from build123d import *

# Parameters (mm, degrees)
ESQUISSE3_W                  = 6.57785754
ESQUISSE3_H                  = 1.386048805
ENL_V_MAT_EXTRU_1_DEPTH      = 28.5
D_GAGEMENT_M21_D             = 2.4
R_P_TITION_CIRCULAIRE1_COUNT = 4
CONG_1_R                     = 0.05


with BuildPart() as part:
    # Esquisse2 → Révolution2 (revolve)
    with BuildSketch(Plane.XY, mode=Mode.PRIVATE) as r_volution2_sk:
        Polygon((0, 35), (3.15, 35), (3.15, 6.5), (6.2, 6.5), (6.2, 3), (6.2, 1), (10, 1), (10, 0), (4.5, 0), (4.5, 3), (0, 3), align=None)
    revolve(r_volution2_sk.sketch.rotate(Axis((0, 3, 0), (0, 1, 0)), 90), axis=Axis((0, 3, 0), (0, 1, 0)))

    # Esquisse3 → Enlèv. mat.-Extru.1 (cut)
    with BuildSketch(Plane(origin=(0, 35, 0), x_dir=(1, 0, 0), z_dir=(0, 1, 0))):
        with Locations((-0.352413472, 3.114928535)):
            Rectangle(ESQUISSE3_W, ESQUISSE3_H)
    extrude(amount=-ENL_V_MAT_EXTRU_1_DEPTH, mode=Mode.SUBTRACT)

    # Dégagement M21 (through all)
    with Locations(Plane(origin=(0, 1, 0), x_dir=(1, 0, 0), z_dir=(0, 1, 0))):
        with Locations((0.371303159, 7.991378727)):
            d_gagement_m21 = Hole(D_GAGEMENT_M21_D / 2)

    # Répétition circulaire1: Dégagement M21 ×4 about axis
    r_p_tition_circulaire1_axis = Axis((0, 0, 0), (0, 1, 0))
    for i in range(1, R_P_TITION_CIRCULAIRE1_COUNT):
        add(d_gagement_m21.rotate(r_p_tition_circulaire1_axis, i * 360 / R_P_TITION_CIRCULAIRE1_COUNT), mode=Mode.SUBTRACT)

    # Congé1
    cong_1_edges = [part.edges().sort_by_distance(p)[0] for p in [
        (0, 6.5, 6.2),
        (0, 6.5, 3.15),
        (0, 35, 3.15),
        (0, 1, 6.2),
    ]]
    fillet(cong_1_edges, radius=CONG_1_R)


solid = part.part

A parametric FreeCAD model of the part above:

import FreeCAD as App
import Part
import Sketcher
from FreeCAD import Vector


def edges_at(feature, points):
    """Names of the edges that pass closest to the given points."""
    edges = feature.Shape.Edges
    near = lambda p: min(range(len(edges)), key=lambda i: edges[i].distToShape(Part.Vertex(*p))[0])
    return sorted({f"Edge{near(p) + 1}" for p in points})


def add_polygon(sketch, points):
    """Adds a closed chain of lines whose ends are joined by coincident constraints."""
    first, n = sketch.GeometryCount, len(points)
    for a, b in zip(points, points[1:] + points[:1]):
        sketch.addGeometry(Part.LineSegment(App.Vector(*a, 0), App.Vector(*b, 0)), False)
    for i in range(n):
        sketch.addConstraint(Sketcher.Constraint("Coincident", first + i, 2, first + (i + 1) % n, 1))

doc = App.newDocument("Part")
params = doc.addObject("Spreadsheet::Sheet", "Params")
for row, (alias, value) in enumerate([
    ("sketch1_height", "32 mm"),
    ("sketch1_height2", "3 mm"),
    ("sketch1_height3", "1 mm"),
    ("sketch1_width", "4.5 mm"),
    ("sketch1_width2", "5.5 mm"),
    ("revolution_angle", "360 deg"),
    ("pocket1_length", "28.5 mm"),
    ("sketch3_diameter", "2.4 mm"),
    ("hole_diameter", "2.4 mm"),
    ("fillet_radius", "0.05 mm"),
], start=1):
    params.set(f"A{row}", alias)
    params.set(f"B{row}", "=" + value)
    params.setAlias(f"B{row}", alias)

body = doc.addObject("PartDesign::Body", "Body")

sketch1 = body.newObject("Sketcher::SketchObject", "Sketch")
sketch1.AttachmentSupport = (doc.getObject("XY_Plane"), [""])
sketch1.MapMode = "FlatFace"
add_polygon(sketch1, [(3.1, 35), (0, 35), (0, 3), (4.5, 3), (4.5, 0), (10, 0), (10, 1), (6.2, 1), (6.2, 6.5), (3.1, 6.5)])
sketch1.addConstraint([
    Sketcher.Constraint("Horizontal", 0),
    Sketcher.Constraint("Vertical", 1),
    Sketcher.Constraint("Horizontal", 2),
    Sketcher.Constraint("Vertical", 3),
    Sketcher.Constraint("Horizontal", 4),
    Sketcher.Constraint("Vertical", 5),
    Sketcher.Constraint("Horizontal", 6),
    Sketcher.Constraint("Vertical", 7),
    Sketcher.Constraint("Horizontal", 8),
    Sketcher.Constraint("Vertical", 9),
    Sketcher.Constraint("PointOnObject", 0, 2, -2),
    Sketcher.Constraint("PointOnObject", 3, 2, -1),
    Sketcher.Constraint("Equal", 4, 7),
    Sketcher.Constraint("DistanceY", 1, 2, 1, 1, 32.0),
    Sketcher.Constraint("DistanceY", 3, 2, 3, 1, 3.0),
    Sketcher.Constraint("DistanceY", 5, 1, 5, 2, 1.0),
    Sketcher.Constraint("DistanceX", 2, 1, 2, 2, 4.5),
    Sketcher.Constraint("DistanceX", 4, 1, 4, 2, 5.5),
    Sketcher.Constraint("DistanceX", 6, 2, 6, 1, 3.8),
    Sketcher.Constraint("DistanceX", 0, 2, 0, 1, 3.15),
])
sketch1.setExpression("Constraints[23]", "Params.sketch1_height")
sketch1.setExpression("Constraints[24]", "Params.sketch1_height2")
sketch1.setExpression("Constraints[25]", "Params.sketch1_height3")
sketch1.setExpression("Constraints[26]", "Params.sketch1_width")
sketch1.setExpression("Constraints[27]", "Params.sketch1_width2")
revolution = body.newObject("PartDesign::Revolution", "Revolution")
revolution.Profile = sketch1
revolution.ReferenceAxis = (sketch1, ["V_Axis"])
revolution.setExpression("Angle", "Params.revolution_angle")

sketch2 = body.newObject("Sketcher::SketchObject", "Sketch001")
sketch2.AttachmentSupport = (doc.getObject("XZ_Plane"), [""])
sketch2.MapMode = "FlatFace"
sketch2.AttachmentOffset = App.Placement(Vector(0, 0, -35), App.Rotation())
add_polygon(sketch2, [(-3.6, -3.8), (-3.6, -2.4), (2.9, -2.4), (2.9, -3.8)])
sketch2.addConstraint([
    Sketcher.Constraint("Vertical", 0),
    Sketcher.Constraint("Horizontal", 1),
    Sketcher.Constraint("Vertical", 2),
    Sketcher.Constraint("Horizontal", 3),
    Sketcher.Constraint("DistanceY", 0, 1, 0, 2, 1.386049),
    Sketcher.Constraint("DistanceX", 1, 1, 1, 2, 6.577858),
    Sketcher.Constraint("DistanceX", 0, 2, -1, 1, 3.641342),
    Sketcher.Constraint("DistanceY", 0, 2, -1, 1, 2.421904),
])
pocket1 = body.newObject("PartDesign::Pocket", "Pocket")
pocket1.Profile = sketch2
pocket1.setExpression("Length", "Params.pocket1_length")
pocket1.Reversed = True

sketch3 = body.newObject("Sketcher::SketchObject", "Sketch002")
sketch3.AttachmentSupport = (doc.getObject("XZ_Plane"), [""])
sketch3.MapMode = "FlatFace"
sketch3.AttachmentOffset = App.Placement(Vector(0, 0, -1), App.Rotation())
sketch3.addGeometry(Part.Circle(Vector(0.4, -8, 0), Vector(0, 0, 1), 1.2), False)
sketch3.addConstraint([
    Sketcher.Constraint("Diameter", 0, 2.4),
    Sketcher.Constraint("DistanceY", 0, 3, -1, 1, 7.991379),
    Sketcher.Constraint("DistanceX", -1, 1, 0, 3, 0.371303),
])
sketch3.setExpression("Constraints[0]", "Params.sketch3_diameter")
doc.recompute()
hole = body.newObject("PartDesign::Hole", "Hole")
hole.Profile = sketch3
hole.ThreadType = "None"
hole.setExpression("Diameter", "Params.hole_diameter")
hole.DepthType = "ThroughAll"
hole.Reversed = True
doc.recompute()

polarpattern = body.newObject("PartDesign::PolarPattern", "PolarPattern")
polarpattern.Originals = [hole]
polarpattern.Axis = (doc.getObject("Y_Axis"), [""])
polarpattern.Angle = 360
polarpattern.Occurrences = 4
body.Tip = polarpattern
doc.recompute()

fillet = body.newObject("PartDesign::Fillet", "Fillet")
fillet.Base = (polarpattern, edges_at(polarpattern, [
    (0, 6.5, 6.2),
    (0, 6.5, 3.15),
    (0, 35, 3.15),
    (0, 1, 6.2),
]))
fillet.setExpression("Radius", "Params.fillet_radius")

doc.recompute()
